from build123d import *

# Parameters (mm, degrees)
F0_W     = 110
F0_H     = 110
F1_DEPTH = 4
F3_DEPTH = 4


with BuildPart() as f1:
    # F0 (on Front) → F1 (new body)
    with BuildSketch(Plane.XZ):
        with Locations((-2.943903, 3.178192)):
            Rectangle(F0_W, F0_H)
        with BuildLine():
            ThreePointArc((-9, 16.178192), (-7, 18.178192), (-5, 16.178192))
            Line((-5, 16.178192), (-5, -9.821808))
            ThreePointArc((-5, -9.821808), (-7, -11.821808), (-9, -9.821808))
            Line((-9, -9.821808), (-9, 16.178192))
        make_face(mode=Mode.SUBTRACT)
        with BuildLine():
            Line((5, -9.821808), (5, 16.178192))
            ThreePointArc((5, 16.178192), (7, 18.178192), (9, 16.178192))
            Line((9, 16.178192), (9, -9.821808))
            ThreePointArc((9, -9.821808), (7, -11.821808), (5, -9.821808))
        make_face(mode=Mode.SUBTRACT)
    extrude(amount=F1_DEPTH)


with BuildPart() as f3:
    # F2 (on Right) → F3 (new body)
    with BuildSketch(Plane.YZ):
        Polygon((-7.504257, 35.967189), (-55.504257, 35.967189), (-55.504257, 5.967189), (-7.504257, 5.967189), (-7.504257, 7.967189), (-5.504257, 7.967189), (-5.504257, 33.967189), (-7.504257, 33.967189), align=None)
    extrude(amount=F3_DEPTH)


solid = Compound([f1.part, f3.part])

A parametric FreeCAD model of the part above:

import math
import FreeCAD as App
import Part
import Sketcher
from FreeCAD import Vector
Q = App.Units.Quantity

doc = App.newDocument("Part")
params = doc.addObject("Spreadsheet::Sheet", "Params")
for row, (alias, value) in enumerate([
    ("sketch1_radius", "2 mm"),
    ("sketch1_width", "110 mm"),
    ("sketch1_height", "26 mm"),
    ("pad1_length", "4 mm"),
    ("sketch2_width", "48 mm"),
    ("sketch2_width2", "2 mm"),
    ("sketch2_height", "30 mm"),
    ("pad2_length", "4 mm"),
], start=1):
    params.set(f"A{row}", alias)
    params.set(f"B{row}", "=" + value)
    params.setAlias(f"B{row}", alias)

body = doc.addObject("PartDesign::Body", "Body")

# Sketch on XZ plane
sketch1 = doc.addObject("Sketcher::SketchObject", "Sketch")
body.addObject(sketch1)
sketch1.AttachmentSupport = (doc.XZ_Plane, [""])
sketch1.MapMode = "FlatFace"
sketch1.addGeometry(Part.LineSegment(Vector(-57.9, 58.2, 0), Vector(-57.9, -51.8, 0)), False)
sketch1.addGeometry(Part.LineSegment(Vector(-57.9, -51.8, 0), Vector(52.1, -51.8, 0)), False)
sketch1.addGeometry(Part.LineSegment(Vector(52.1, -51.8, 0), Vector(52.1, 58.2, 0)), False)
sketch1.addGeometry(Part.LineSegment(Vector(52.1, 58.2, 0), Vector(-57.9, 58.2, 0)), False)
sketch1.addGeometry(Part.LineSegment(Vector(-9, -9.8, 0), Vector(-9, 16.2, 0)), False)
sketch1.addGeometry(Part.ArcOfCircle(Part.Circle(Vector(-7, 16.2, 0), Vector(0, 0, 1), 2), math.radians(0), math.radians(180)), False)
sketch1.addGeometry(Part.LineSegment(Vector(-5, 16.2, 0), Vector(-5, -9.8, 0)), False)
sketch1.addGeometry(Part.ArcOfCircle(Part.Circle(Vector(-7, -9.8, 0), Vector(0, 0, 1), 2), math.radians(180), math.radians(360)), False)
sketch1.addGeometry(Part.ArcOfCircle(Part.Circle(Vector(7, -9.8, 0), Vector(0, 0, 1), 2), math.radians(180), math.radians(360)), False)
sketch1.addGeometry(Part.LineSegment(Vector(5, -9.8, 0), Vector(5, 16.2, 0)), False)
sketch1.addGeometry(Part.ArcOfCircle(Part.Circle(Vector(7, 16.2, 0), Vector(0, 0, 1), 2), math.radians(0), math.radians(180)), False)
sketch1.addGeometry(Part.LineSegment(Vector(9, 16.2, 0), Vector(9, -9.8, 0)), False)
sketch1.addConstraint(Sketcher.Constraint("Coincident", 0, 2, 1, 1))
sketch1.addConstraint(Sketcher.Constraint("Coincident", 1, 2, 2, 1))
sketch1.addConstraint(Sketcher.Constraint("Coincident", 2, 2, 3, 1))
sketch1.addConstraint(Sketcher.Constraint("Coincident", 3, 2, 0, 1))
sketch1.addConstraint(Sketcher.Constraint("Tangent", 4, 2, 5, 2))
sketch1.addConstraint(Sketcher.Constraint("Tangent", 5, 1, 6, 1))
sketch1.addConstraint(Sketcher.Constraint("Tangent", 6, 2, 7, 2))
sketch1.addConstraint(Sketcher.Constraint("Tangent", 7, 1, 4, 1))
sketch1.addConstraint(Sketcher.Constraint("Tangent", 8, 1, 9, 1))
sketch1.addConstraint(Sketcher.Constraint("Tangent", 9, 2, 10, 2))
sketch1.addConstraint(Sketcher.Constraint("Tangent", 10, 1, 11, 1))
sketch1.addConstraint(Sketcher.Constraint("Tangent", 11, 2, 8, 2))
sketch1.addConstraint(Sketcher.Constraint("Vertical", 0))
sketch1.addConstraint(Sketcher.Constraint("Horizontal", 1))
sketch1.addConstraint(Sketcher.Constraint("Vertical", 2))
sketch1.addConstraint(Sketcher.Constraint("Horizontal", 3))
sketch1.addConstraint(Sketcher.Constraint("Vertical", 4))
sketch1.addConstraint(Sketcher.Constraint("Vertical", 6))
sketch1.addConstraint(Sketcher.Constraint("Vertical", 9))
sketch1.addConstraint(Sketcher.Constraint("Vertical", 11))
sketch1.addConstraint(Sketcher.Constraint("Equal", 7, 8))
sketch1.addConstraint(Sketcher.Constraint("Symmetric", 7, 3, 8, 3, -2))
sketch1.addConstraint(Sketcher.Constraint("Horizontal", 5, 3, 10, 3))
sketch1.addConstraint(Sketcher.Constraint("Equal", 3, 0))
sketch1.addConstraint(Sketcher.Constraint("Radius", 5, Q("2 mm")))
sketch1.addConstraint(Sketcher.Constraint("DistanceX", 1, 1, 1, 2, Q("110 mm")))
sketch1.addConstraint(Sketcher.Constraint("DistanceY", 4, 1, 4, 2, Q("26 mm")))
sketch1.addConstraint(Sketcher.Constraint("DistanceX", 5, 3, -1, 1, Q("7 mm")))
sketch1.addConstraint(Sketcher.Constraint("DistanceY", 0, 2, 7, 3, Q("42 mm")))
sketch1.addConstraint(Sketcher.Constraint("DistanceY", -1, 1, 5, 3, Q("16.178192 mm")))
sketch1.addConstraint(Sketcher.Constraint("DistanceX", 0, 2, -1, 1, Q("57.943903 mm")))
sketch1.setExpression("Constraints[24]", "Params.sketch1_radius")
sketch1.setExpression("Constraints[25]", "Params.sketch1_width")
sketch1.setExpression("Constraints[26]", "Params.sketch1_height")
pad1 = doc.addObject("PartDesign::Pad", "Pad")
body.addObject(pad1)
pad1.Profile = sketch1
pad1.setExpression("Length", "Params.pad1_length")
body2 = doc.addObject("PartDesign::Body", "Body001")

# Sketch on YZ plane
sketch2 = doc.addObject("Sketcher::SketchObject", "Sketch001")
body2.addObject(sketch2)
sketch2.AttachmentSupport = (doc.getObject("YZ_Plane001"), [""])
sketch2.MapMode = "FlatFace"
sketch2.addGeometry(Part.LineSegment(Vector(-7.5, 36, 0), Vector(-55.5, 36, 0)), False)
sketch2.addGeometry(Part.LineSegment(Vector(-55.5, 36, 0), Vector(-55.5, 6, 0)), False)
sketch2.addGeometry(Part.LineSegment(Vector(-55.5, 6, 0), Vector(-7.5, 6, 0)), False)
sketch2.addGeometry(Part.LineSegment(Vector(-7.5, 6, 0), Vector(-7.5, 8, 0)), False)
sketch2.addGeometry(Part.LineSegment(Vector(-7.5, 8, 0), Vector(-5.5, 8, 0)), False)
sketch2.addGeometry(Part.LineSegment(Vector(-5.5, 8, 0), Vector(-5.5, 34, 0)), False)
sketch2.addGeometry(Part.LineSegment(Vector(-5.5, 34, 0), Vector(-7.5, 34, 0)), False)
sketch2.addGeometry(Part.LineSegment(Vector(-7.5, 34, 0), Vector(-7.5, 36, 0)), False)
sketch2.addConstraint(Sketcher.Constraint("Coincident", 0, 2, 1, 1))
sketch2.addConstraint(Sketcher.Constraint("Coincident", 1, 2, 2, 1))
sketch2.addConstraint(Sketcher.Constraint("Coincident", 2, 2, 3, 1))
sketch2.addConstraint(Sketcher.Constraint("Coincident", 3, 2, 4, 1))
sketch2.addConstraint(Sketcher.Constraint("Coincident", 4, 2, 5, 1))
sketch2.addConstraint(Sketcher.Constraint("Coincident", 5, 2, 6, 1))
sketch2.addConstraint(Sketcher.Constraint("Coincident", 6, 2, 7, 1))
sketch2.addConstraint(Sketcher.Constraint("Coincident", 7, 2, 0, 1))
sketch2.addConstraint(Sketcher.Constraint("Horizontal", 0))
sketch2.addConstraint(Sketcher.Constraint("Vertical", 1))
sketch2.addConstraint(Sketcher.Constraint("Horizontal", 2))
sketch2.addConstraint(Sketcher.Constraint("Vertical", 3))
sketch2.addConstraint(Sketcher.Constraint("Horizontal", 4))
sketch2.addConstraint(Sketcher.Constraint("Vertical", 5))
sketch2.addConstraint(Sketcher.Constraint("Horizontal", 6))
sketch2.addConstraint(Sketcher.Constraint("Vertical", 7))
sketch2.addConstraint(Sketcher.Constraint("Vertical", 3, 2, 6, 2))
sketch2.addConstraint(Sketcher.Constraint("Equal", 6, 3))
sketch2.addConstraint(Sketcher.Constraint("Equal", 3, 7))
sketch2.addConstraint(Sketcher.Constraint("DistanceX", 0, 2, 0, 1, Q("48 mm")))
sketch2.addConstraint(Sketcher.Constraint("DistanceX", 4, 1, 4, 2, Q("2 mm")))
sketch2.addConstraint(Sketcher.Constraint("DistanceY", 1, 2, 1, 1, Q("30 mm")))
sketch2.addConstraint(Sketcher.Constraint("DistanceY", -1, 1, 0, 2, Q("35.967189 mm")))
sketch2.addConstraint(Sketcher.Constraint("DistanceX", 0, 2, -1, 1, Q("55.504257 mm")))
sketch2.setExpression("Constraints[19]", "Params.sketch2_width")
sketch2.setExpression("Constraints[20]", "Params.sketch2_width2")
sketch2.setExpression("Constraints[21]", "Params.sketch2_height")
pad2 = doc.addObject("PartDesign::Pad", "Pad001")
body2.addObject(pad2)
pad2.Profile = sketch2
pad2.setExpression("Length", "Params.pad2_length")

doc.recompute()
